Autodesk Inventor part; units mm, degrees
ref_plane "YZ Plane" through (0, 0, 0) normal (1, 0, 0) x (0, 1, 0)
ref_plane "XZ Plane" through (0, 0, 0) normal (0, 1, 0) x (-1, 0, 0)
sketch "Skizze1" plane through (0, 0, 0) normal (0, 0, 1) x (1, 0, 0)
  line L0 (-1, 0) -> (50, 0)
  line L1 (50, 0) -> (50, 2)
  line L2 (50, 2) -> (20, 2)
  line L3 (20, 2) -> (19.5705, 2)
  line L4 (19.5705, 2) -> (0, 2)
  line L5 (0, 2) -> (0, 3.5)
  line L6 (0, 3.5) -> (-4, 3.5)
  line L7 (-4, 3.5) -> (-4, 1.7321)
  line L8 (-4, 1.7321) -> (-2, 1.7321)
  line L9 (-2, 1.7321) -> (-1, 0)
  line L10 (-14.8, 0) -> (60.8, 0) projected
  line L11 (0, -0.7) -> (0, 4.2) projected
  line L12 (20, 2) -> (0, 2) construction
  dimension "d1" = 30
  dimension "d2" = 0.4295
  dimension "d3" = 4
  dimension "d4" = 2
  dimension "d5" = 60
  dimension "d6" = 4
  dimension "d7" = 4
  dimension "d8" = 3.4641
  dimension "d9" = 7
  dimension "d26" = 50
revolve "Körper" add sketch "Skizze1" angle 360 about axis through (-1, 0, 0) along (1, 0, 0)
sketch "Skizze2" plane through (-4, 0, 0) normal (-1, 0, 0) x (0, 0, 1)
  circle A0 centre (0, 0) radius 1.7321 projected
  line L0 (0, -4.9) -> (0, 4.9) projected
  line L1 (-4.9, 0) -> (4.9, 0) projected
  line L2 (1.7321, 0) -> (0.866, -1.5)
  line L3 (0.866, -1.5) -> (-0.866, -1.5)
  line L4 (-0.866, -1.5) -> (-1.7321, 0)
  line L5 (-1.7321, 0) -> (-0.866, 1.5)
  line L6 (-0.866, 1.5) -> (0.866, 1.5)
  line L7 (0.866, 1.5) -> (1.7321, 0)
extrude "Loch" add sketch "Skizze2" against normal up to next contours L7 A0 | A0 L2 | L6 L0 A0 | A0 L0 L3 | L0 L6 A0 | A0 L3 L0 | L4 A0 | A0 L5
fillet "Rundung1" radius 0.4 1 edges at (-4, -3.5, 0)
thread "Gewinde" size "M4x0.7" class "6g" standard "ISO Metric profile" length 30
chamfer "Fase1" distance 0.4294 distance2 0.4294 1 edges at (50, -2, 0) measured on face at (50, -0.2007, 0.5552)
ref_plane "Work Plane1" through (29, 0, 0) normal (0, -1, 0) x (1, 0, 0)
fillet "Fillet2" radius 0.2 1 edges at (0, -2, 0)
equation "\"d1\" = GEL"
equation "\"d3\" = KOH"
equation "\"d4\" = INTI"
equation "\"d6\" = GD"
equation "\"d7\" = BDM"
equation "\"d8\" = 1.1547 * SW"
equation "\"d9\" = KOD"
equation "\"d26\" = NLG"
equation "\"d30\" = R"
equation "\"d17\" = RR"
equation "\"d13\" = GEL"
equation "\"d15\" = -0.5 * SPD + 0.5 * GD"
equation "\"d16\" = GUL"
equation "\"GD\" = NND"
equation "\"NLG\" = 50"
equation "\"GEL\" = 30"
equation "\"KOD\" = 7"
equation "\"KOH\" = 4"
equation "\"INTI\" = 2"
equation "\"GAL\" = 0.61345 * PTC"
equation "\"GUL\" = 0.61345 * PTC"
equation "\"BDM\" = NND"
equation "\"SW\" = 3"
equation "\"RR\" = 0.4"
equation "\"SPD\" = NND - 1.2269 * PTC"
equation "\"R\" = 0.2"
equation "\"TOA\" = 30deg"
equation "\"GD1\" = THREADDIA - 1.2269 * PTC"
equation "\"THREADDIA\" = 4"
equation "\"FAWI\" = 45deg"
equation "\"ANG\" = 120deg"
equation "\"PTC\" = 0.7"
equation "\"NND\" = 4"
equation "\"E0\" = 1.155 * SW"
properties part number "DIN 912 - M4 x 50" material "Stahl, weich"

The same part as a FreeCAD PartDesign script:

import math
import FreeCAD as App
import Part
import Sketcher

V = App.Vector


def edges_at(feature, points):
    """Names of the edges that pass closest to the given points."""
    edges = feature.Shape.Edges
    near = lambda p: min(range(len(edges)), key=lambda i: edges[i].distToShape(Part.Vertex(*p))[0])
    return sorted({f"Edge{near(p) + 1}" for p in points})

doc = App.newDocument("Part")
body = doc.addObject("PartDesign::Body", "Body")

# Sketch on XY plane
sketch1 = body.newObject("Sketcher::SketchObject", "Sketch")
sketch1.AttachmentSupport = (doc.getObject("XY_Plane"), [""])
sketch1.MapMode = "FlatFace"
sketch1.addGeometry([
    Part.LineSegment(V(-2, 1.7, 0), V(-1, 0, 0)),  # 0
    Part.LineSegment(V(-1, 0, 0), V(50, 0, 0)),  # 1
    Part.LineSegment(V(50, 0, 0), V(50, 2, 0)),  # 2
    Part.LineSegment(V(50, 2, 0), V(0, 2, 0)),  # 3
    Part.LineSegment(V(0, 2, 0), V(0, 3.5, 0)),  # 4
    Part.LineSegment(V(0, 3.5, 0), V(-4, 3.5, 0)),  # 5
    Part.LineSegment(V(-4, 3.5, 0), V(-4, 1.7, 0)),  # 6
    Part.LineSegment(V(-4, 1.7, 0), V(-2, 1.7, 0)),  # 7
], False)
sketch1.addConstraint([
    Sketcher.Constraint("Coincident", 0, 2, 1, 1),
    Sketcher.Constraint("Coincident", 1, 2, 2, 1),
    Sketcher.Constraint("Coincident", 2, 2, 3, 1),
    Sketcher.Constraint("Coincident", 3, 2, 4, 1),
    Sketcher.Constraint("Coincident", 4, 2, 5, 1),
    Sketcher.Constraint("Coincident", 5, 2, 6, 1),
    Sketcher.Constraint("Coincident", 6, 2, 7, 1),
    Sketcher.Constraint("Coincident", 7, 2, 0, 1),
    Sketcher.Constraint("Horizontal", 1),
    Sketcher.Constraint("Vertical", 2),
    Sketcher.Constraint("Horizontal", 3),
    Sketcher.Constraint("Vertical", 4),
    Sketcher.Constraint("Horizontal", 5),
    Sketcher.Constraint("Vertical", 6),
    Sketcher.Constraint("Horizontal", 7),
    Sketcher.Constraint("PointOnObject", 0, 2, -1),
    Sketcher.Constraint("PointOnObject", 3, 2, -2),
    Sketcher.Constraint("Equal", 7, 2),
    Sketcher.Constraint("DistanceX", 3, 2, 3, 1, 50.0),
    Sketcher.Constraint("DistanceX", 5, 2, 5, 1, 4.0),
    Sketcher.Constraint("DistanceX", 7, 1, 7, 2, 2.0),
    Sketcher.Constraint("Distance", 0, 2.0),
    Sketcher.Constraint("DistanceX", 1, 1, 1, 2, 51.0),
    Sketcher.Constraint("DistanceY", 4, 1, 4, 2, 1.5),
])
revolution = body.newObject("PartDesign::Revolution", "Revolution")
revolution.Profile = sketch1
revolution.ReferenceAxis = (sketch1, ["H_Axis"])
revolution.Angle = 360

# Sketch on YZ plane
sketch2 = body.newObject("Sketcher::SketchObject", "Sketch001")
sketch2.AttachmentSupport = (doc.getObject("YZ_Plane"), [""])
sketch2.MapMode = "FlatFace"
sketch2.AttachmentOffset = App.Placement(V(0, 0, -4), App.Rotation())
sketch2.addGeometry([
    Part.LineSegment(V(1.5, 0.9, 0), V(0, 1.7, 0)),  # 0
    Part.ArcOfCircle(Part.Circle(V(0, 0, 0), V(0, 0, 1), 1.7), math.radians(30), math.radians(90)),  # 1
    Part.ArcOfCircle(Part.Circle(V(0, 0, 0), V(0, 0, 1), 1.7), math.radians(90), math.radians(150)),  # 2
    Part.LineSegment(V(0, 1.7, 0), V(-1.5, 0.9, 0)),  # 3
    Part.ArcOfCircle(Part.Circle(V(0, 0, 0), V(0, 0, 1), 1.7), math.radians(-30), math.radians(30)),  # 4
    Part.LineSegment(V(1.5, 0.9, 0), V(1.5, -0.9, 0)),  # 5
    Part.LineSegment(V(-1.5, 0.9, 0), V(-1.5, -0.9, 0)),  # 6
    Part.ArcOfCircle(Part.Circle(V(0, 0, 0), V(0, 0, 1), 1.7), math.radians(150), math.radians(210)),  # 7
    Part.LineSegment(V(-1.5, -0.9, 0), V(0, -1.7, 0)),  # 8
    Part.ArcOfCircle(Part.Circle(V(0, 0, 0), V(0, 0, 1), 1.7), math.radians(-150), math.radians(-90)),  # 9
    Part.ArcOfCircle(Part.Circle(V(0, 0, 0), V(0, 0, 1), 1.7), math.radians(-90), math.radians(-30)),  # 10
    Part.LineSegment(V(0, -1.7, 0), V(1.5, -0.9, 0)),  # 11
], False)
sketch2.addConstraint([
    Sketcher.Constraint("Coincident", 0, 1, 1, 1),
    Sketcher.Constraint("Coincident", 1, 2, 0, 2),
    Sketcher.Constraint("Coincident", 2, 1, 3, 1),
    Sketcher.Constraint("Coincident", 3, 2, 2, 2),
    Sketcher.Constraint("Coincident", 4, 1, 5, 2),
    Sketcher.Constraint("Coincident", 5, 1, 4, 2),
    Sketcher.Constraint("Coincident", 6, 1, 7, 1),
    Sketcher.Constraint("Coincident", 7, 2, 6, 2),
    Sketcher.Constraint("Coincident", 8, 1, 9, 1),
    Sketcher.Constraint("Coincident", 9, 2, 8, 2),
    Sketcher.Constraint("Coincident", 10, 1, 11, 1),
    Sketcher.Constraint("Coincident", 11, 2, 10, 2),
    Sketcher.Constraint("Vertical", 5),
    Sketcher.Constraint("Vertical", 6),
    Sketcher.Constraint("Coincident", 1, 3, -1, 1),
    Sketcher.Constraint("Coincident", 2, 3, -1, 1),
    Sketcher.Constraint("Coincident", 4, 3, -1, 1),
    Sketcher.Constraint("Coincident", 7, 3, -1, 1),
    Sketcher.Constraint("Coincident", 9, 3, -1, 1),
    Sketcher.Constraint("Coincident", 10, 3, -1, 1),
    Sketcher.Constraint("Coincident", 2, 1, 1, 2),
    Sketcher.Constraint("Coincident", 5, 1, 0, 1),
    Sketcher.Constraint("Coincident", 6, 1, 3, 2),
    Sketcher.Constraint("Coincident", 8, 1, 7, 2),
    Sketcher.Constraint("Coincident", 10, 1, 9, 2),
    Sketcher.Constraint("PointOnObject", 1, 2, -2),
    Sketcher.Constraint("PointOnObject", 9, 2, -2),
    Sketcher.Constraint("Parallel", 0, 8),
    Sketcher.Constraint("Parallel", 3, 11),
    Sketcher.Constraint("Radius", 1, 1.732),
    Sketcher.Constraint("DistanceX", -1, 1, 0, 1, 1.5),
])
pad1 = body.newObject("PartDesign::Pad", "Pad")
pad1.Profile = sketch2
pad1.Type = "UpToFirst"
doc.recompute()

fillet = body.newObject("PartDesign::Fillet", "Fillet")
fillet.Base = (pad1, edges_at(pad1, [(-4, -3.5, 0)]))
fillet.Radius = 0.4
doc.recompute()

chamfer = body.newObject("PartDesign::Chamfer", "Chamfer")
chamfer.Base = (fillet, edges_at(fillet, [(50, -2, 0)]))
chamfer.ChamferType = "Two distances"
chamfer.Size = 0.4294
chamfer.Size2 = 0.4294
doc.recompute()

fillet2 = body.newObject("PartDesign::Fillet", "Fillet001")
fillet2.Base = (chamfer, edges_at(chamfer, [(0, -2, 0)]))
fillet2.Radius = 0.2

doc.recompute()
